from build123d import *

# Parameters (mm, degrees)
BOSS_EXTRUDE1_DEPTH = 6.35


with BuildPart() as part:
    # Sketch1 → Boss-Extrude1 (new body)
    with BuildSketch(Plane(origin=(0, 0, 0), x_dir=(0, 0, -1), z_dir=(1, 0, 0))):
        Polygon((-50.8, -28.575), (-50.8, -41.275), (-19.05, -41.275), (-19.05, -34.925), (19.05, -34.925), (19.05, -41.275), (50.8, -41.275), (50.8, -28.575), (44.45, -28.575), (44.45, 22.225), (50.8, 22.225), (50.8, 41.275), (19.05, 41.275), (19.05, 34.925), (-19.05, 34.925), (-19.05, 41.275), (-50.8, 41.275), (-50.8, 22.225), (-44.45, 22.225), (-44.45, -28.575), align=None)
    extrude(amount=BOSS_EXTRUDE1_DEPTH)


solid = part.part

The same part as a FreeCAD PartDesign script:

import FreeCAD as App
import Part
import Sketcher
from FreeCAD import Vector
Q = App.Units.Quantity

doc = App.newDocument("Part")
body = doc.addObject("PartDesign::Body", "Body")

# Sketch on YZ plane
sketch1 = doc.addObject("Sketcher::SketchObject", "Sketch")
body.addObject(sketch1)
sketch1.AttachmentSupport = (doc.YZ_Plane, [""])
sketch1.MapMode = "FlatFace"
sketch1.addGeometry([
    Part.LineSegment(Vector(-29, 51, 0), Vector(-41, 51, 0)),  # 0
    Part.LineSegment(Vector(-41, 51, 0), Vector(-41, 19, 0)),  # 1
    Part.LineSegment(Vector(-41, 19, 0), Vector(-35, 19, 0)),  # 2
    Part.LineSegment(Vector(-35, 19, 0), Vector(-35, -19, 0)),  # 3
    Part.LineSegment(Vector(-35, -19, 0), Vector(-41, -19, 0)),  # 4
    Part.LineSegment(Vector(-41, -19, 0), Vector(-41, -51, 0)),  # 5
    Part.LineSegment(Vector(-41, -51, 0), Vector(-29, -51, 0)),  # 6
    Part.LineSegment(Vector(-29, -51, 0), Vector(-29, -44, 0)),  # 7
    Part.LineSegment(Vector(-29, -44, 0), Vector(22, -44, 0)),  # 8
    Part.LineSegment(Vector(22, -44, 0), Vector(22, -51, 0)),  # 9
    Part.LineSegment(Vector(22, -51, 0), Vector(41, -51, 0)),  # 10
    Part.LineSegment(Vector(41, -51, 0), Vector(41, -19, 0)),  # 11
    Part.LineSegment(Vector(41, -19, 0), Vector(35, -19, 0)),  # 12
    Part.LineSegment(Vector(35, -19, 0), Vector(35, 19, 0)),  # 13
    Part.LineSegment(Vector(35, 19, 0), Vector(41, 19, 0)),  # 14
    Part.LineSegment(Vector(41, 19, 0), Vector(41, 51, 0)),  # 15
    Part.LineSegment(Vector(41, 51, 0), Vector(22, 51, 0)),  # 16
    Part.LineSegment(Vector(22, 51, 0), Vector(22, 44, 0)),  # 17
    Part.LineSegment(Vector(22, 44, 0), Vector(-29, 44, 0)),  # 18
    Part.LineSegment(Vector(-29, 44, 0), Vector(-29, 51, 0)),  # 19
], False)
sketch1.addConstraint([
    Sketcher.Constraint("Coincident", 0, 2, 1, 1),
    Sketcher.Constraint("Coincident", 1, 2, 2, 1),
    Sketcher.Constraint("Coincident", 2, 2, 3, 1),
    Sketcher.Constraint("Coincident", 3, 2, 4, 1),
    Sketcher.Constraint("Coincident", 4, 2, 5, 1),
    Sketcher.Constraint("Coincident", 5, 2, 6, 1),
    Sketcher.Constraint("Coincident", 6, 2, 7, 1),
    Sketcher.Constraint("Coincident", 7, 2, 8, 1),
    Sketcher.Constraint("Coincident", 8, 2, 9, 1),
    Sketcher.Constraint("Coincident", 9, 2, 10, 1),
    Sketcher.Constraint("Coincident", 10, 2, 11, 1),
    Sketcher.Constraint("Coincident", 11, 2, 12, 1),
    Sketcher.Constraint("Coincident", 12, 2, 13, 1),
    Sketcher.Constraint("Coincident", 13, 2, 14, 1),
    Sketcher.Constraint("Coincident", 14, 2, 15, 1),
    Sketcher.Constraint("Coincident", 15, 2, 16, 1),
    Sketcher.Constraint("Coincident", 16, 2, 17, 1),
    Sketcher.Constraint("Coincident", 17, 2, 18, 1),
    Sketcher.Constraint("Coincident", 18, 2, 19, 1),
    Sketcher.Constraint("Coincident", 19, 2, 0, 1),
    Sketcher.Constraint("Horizontal", 0),
    Sketcher.Constraint("Vertical", 1),
    Sketcher.Constraint("Horizontal", 2),
    Sketcher.Constraint("Vertical", 3),
    Sketcher.Constraint("Horizontal", 4),
    Sketcher.Constraint("Vertical", 5),
    Sketcher.Constraint("Horizontal", 6),
    Sketcher.Constraint("Vertical", 7),
    Sketcher.Constraint("Horizontal", 8),
    Sketcher.Constraint("Vertical", 9),
    Sketcher.Constraint("Horizontal", 10),
    Sketcher.Constraint("Vertical", 11),
    Sketcher.Constraint("Horizontal", 12),
    Sketcher.Constraint("Vertical", 13),
    Sketcher.Constraint("Horizontal", 14),
    Sketcher.Constraint("Vertical", 15),
    Sketcher.Constraint("Horizontal", 16),
    Sketcher.Constraint("Vertical", 17),
    Sketcher.Constraint("Horizontal", 18),
    Sketcher.Constraint("Vertical", 19),
    Sketcher.Constraint("Symmetric", 0, 2, 10, 2, -1, 1),
    Sketcher.Constraint("Symmetric", 2, 2, 12, 2, -1, 1),
    Sketcher.Constraint("Symmetric", 4, 2, 14, 2, -1, 1),
    Sketcher.Constraint("Symmetric", 5, 2, 10, 2, -2),
    Sketcher.Constraint("Symmetric", 9, 2, 16, 2, -1),
    Sketcher.Constraint("Symmetric", 7, 2, 18, 2, -1),
    Sketcher.Constraint("Horizontal", 4, 2, 11, 2),
    Sketcher.Constraint("Equal", 14, 7),
    Sketcher.Constraint("DistanceX", 8, 1, 8, 2, Q("2 in")),
    Sketcher.Constraint("DistanceX", 0, 2, 0, 1, Q("0.5 in")),
    Sketcher.Constraint("DistanceY", 3, 2, 3, 1, Q("1.5 in")),
    Sketcher.Constraint("DistanceY", -1, 1, 0, 2, Q("2 in")),
    Sketcher.Constraint("DistanceY", 7, 2, 3, 2, Q("1 in")),
    Sketcher.Constraint("DistanceX", 3, 2, 10, 2, Q("3 in")),
])
pad1 = doc.addObject("PartDesign::Pad", "Pad")
body.addObject(pad1)
pad1.Profile = sketch1
pad1.Length = Q("0.25 in")

doc.recompute()
